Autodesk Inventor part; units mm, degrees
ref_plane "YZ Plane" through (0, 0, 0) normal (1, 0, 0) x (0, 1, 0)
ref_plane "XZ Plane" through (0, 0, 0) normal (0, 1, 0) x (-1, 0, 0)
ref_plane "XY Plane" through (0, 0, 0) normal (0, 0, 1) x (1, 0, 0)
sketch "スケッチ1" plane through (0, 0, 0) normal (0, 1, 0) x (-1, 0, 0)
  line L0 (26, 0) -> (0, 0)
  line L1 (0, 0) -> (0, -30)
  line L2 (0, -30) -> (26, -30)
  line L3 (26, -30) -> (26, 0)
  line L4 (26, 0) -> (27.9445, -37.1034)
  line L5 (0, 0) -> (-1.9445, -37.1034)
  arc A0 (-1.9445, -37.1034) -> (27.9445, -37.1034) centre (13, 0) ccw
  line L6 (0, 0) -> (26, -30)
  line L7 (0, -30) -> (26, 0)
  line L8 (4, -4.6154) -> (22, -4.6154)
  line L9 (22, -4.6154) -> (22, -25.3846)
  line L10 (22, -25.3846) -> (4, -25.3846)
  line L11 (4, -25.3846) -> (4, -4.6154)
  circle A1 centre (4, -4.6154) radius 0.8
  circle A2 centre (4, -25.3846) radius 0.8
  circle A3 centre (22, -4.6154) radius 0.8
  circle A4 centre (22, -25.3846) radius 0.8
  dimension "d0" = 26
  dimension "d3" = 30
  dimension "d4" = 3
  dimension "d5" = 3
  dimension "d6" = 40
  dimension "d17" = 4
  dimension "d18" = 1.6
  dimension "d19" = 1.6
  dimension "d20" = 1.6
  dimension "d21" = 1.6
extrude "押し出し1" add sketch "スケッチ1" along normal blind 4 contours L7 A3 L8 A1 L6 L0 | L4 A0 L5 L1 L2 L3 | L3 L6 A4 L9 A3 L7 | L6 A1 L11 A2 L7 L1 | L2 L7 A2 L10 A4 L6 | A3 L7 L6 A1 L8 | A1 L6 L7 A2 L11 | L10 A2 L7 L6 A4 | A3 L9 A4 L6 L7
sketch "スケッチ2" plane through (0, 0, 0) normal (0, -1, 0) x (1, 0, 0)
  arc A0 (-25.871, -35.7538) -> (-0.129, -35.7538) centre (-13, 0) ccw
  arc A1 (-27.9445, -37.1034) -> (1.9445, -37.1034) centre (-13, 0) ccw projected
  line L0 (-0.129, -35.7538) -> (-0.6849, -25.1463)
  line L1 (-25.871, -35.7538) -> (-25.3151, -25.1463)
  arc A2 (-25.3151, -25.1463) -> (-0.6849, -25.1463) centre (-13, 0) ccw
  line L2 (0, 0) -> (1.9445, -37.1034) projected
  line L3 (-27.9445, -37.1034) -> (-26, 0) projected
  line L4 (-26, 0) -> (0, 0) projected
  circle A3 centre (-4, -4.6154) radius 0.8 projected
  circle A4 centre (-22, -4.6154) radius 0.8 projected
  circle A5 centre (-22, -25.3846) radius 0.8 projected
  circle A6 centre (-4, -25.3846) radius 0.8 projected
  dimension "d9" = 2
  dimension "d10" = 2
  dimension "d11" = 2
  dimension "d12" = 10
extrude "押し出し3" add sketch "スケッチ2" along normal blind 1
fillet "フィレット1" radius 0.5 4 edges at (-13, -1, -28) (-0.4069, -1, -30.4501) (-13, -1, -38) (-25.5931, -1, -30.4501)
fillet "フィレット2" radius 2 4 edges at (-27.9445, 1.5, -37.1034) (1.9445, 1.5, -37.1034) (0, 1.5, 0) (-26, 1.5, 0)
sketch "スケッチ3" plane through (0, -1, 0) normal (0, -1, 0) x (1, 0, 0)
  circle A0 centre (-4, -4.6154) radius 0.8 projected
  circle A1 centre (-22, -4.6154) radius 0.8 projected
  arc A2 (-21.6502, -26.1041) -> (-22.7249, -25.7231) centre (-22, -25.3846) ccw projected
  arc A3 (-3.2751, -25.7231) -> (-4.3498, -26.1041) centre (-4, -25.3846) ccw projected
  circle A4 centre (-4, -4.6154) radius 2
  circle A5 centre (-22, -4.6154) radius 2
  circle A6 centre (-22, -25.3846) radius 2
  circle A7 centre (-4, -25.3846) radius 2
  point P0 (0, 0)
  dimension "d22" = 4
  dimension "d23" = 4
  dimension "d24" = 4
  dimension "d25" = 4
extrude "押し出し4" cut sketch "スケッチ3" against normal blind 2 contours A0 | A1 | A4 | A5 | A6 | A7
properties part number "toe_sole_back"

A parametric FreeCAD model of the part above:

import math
import FreeCAD as App
import Part
import Sketcher

V = App.Vector
Q = App.Units.Quantity


def edges_at(feature, points):
    """Names of the edges that pass closest to the given points."""
    edges = feature.Shape.Edges
    near = lambda p: min(range(len(edges)), key=lambda i: edges[i].distToShape(Part.Vertex(*p))[0])
    return sorted({f"Edge{near(p) + 1}" for p in points})

doc = App.newDocument("Part")
body = doc.addObject("PartDesign::Body", "Body")

# Sketch on XZ plane
sketch1 = doc.addObject("Sketcher::SketchObject", "Sketch")
body.addObject(sketch1)
sketch1.AttachmentSupport = (doc.XZ_Plane, [""])
sketch1.MapMode = "FlatFace"
sketch1.addGeometry(Part.LineSegment(V(-26, 0, 0), V(0, 0, 0)), False)
sketch1.addGeometry(Part.LineSegment(V(0, 0, 0), V(1.9, -37.1, 0)), False)
sketch1.addGeometry(Part.ArcOfCircle(Part.Circle(V(-13, 0, 0), V(0, 0, 1), 40), math.radians(-112), math.radians(-68)), False)
sketch1.addGeometry(Part.LineSegment(V(-27.9, -37.1, 0), V(-26, 0, 0)), False)
sketch1.addGeometry(Part.Circle(V(-22, -4.6, 0), V(0, 0, 1), 0.8), False)
sketch1.addGeometry(Part.Circle(V(-4, -4.6, 0), V(0, 0, 1), 0.8), False)
sketch1.addGeometry(Part.Circle(V(-22, -25.4, 0), V(0, 0, 1), 0.8), False)
sketch1.addGeometry(Part.Circle(V(-4, -25.4, 0), V(0, 0, 1), 0.8), False)
sketch1.addConstraint(Sketcher.Constraint("Coincident", 0, 2, 1, 1))
sketch1.addConstraint(Sketcher.Constraint("Coincident", 1, 2, 2, 2))
sketch1.addConstraint(Sketcher.Constraint("Coincident", 2, 1, 3, 1))
sketch1.addConstraint(Sketcher.Constraint("Coincident", 3, 2, 0, 1))
sketch1.addConstraint(Sketcher.Constraint("Horizontal", 0))
sketch1.addConstraint(Sketcher.Constraint("Coincident", 0, 2, -1, 1))
sketch1.addConstraint(Sketcher.Constraint("Equal", 4, 5))
sketch1.addConstraint(Sketcher.Constraint("Equal", 5, 6))
sketch1.addConstraint(Sketcher.Constraint("Equal", 6, 7))
sketch1.addConstraint(Sketcher.Constraint("PointOnObject", 2, 3, -1))
sketch1.addConstraint(Sketcher.Constraint("Horizontal", 4, 3, 5, 3))
sketch1.addConstraint(Sketcher.Constraint("Horizontal", 6, 3, 7, 3))
sketch1.addConstraint(Sketcher.Constraint("Horizontal", 1, 2, 2, 1))
sketch1.addConstraint(Sketcher.Constraint("Vertical", 4, 3, 6, 3))
sketch1.addConstraint(Sketcher.Constraint("Vertical", 5, 3, 7, 3))
sketch1.addConstraint(Sketcher.Constraint("Equal", 1, 3))
sketch1.addConstraint(Sketcher.Constraint("Radius", 2, Q("40 mm")))
sketch1.addConstraint(Sketcher.Constraint("Diameter", 4, Q("1.6 mm")))
sketch1.addConstraint(Sketcher.Constraint("DistanceX", 0, 1, 0, 2, Q("26 mm")))
sketch1.addConstraint(Sketcher.Constraint("DistanceX", 5, 3, -1, 1, Q("4 mm")))
sketch1.addConstraint(Sketcher.Constraint("DistanceX", 3, 2, 4, 3, Q("4 mm")))
sketch1.addConstraint(Sketcher.Constraint("Angle", 1, Q("-87 deg")))
sketch1.addConstraint(Sketcher.Constraint("DistanceY", 1, 2, 5, 3, Q("32.488 mm")))
sketch1.addConstraint(Sketcher.Constraint("DistanceY", 6, 3, -1, 1, Q("25.3846 mm")))
pad1 = doc.addObject("PartDesign::Pad", "Pad")
body.addObject(pad1)
pad1.Profile = sketch1
pad1.Length = 4
pad1.Reversed = True

# Sketch on XZ plane
sketch2 = doc.addObject("Sketcher::SketchObject", "Sketch001")
body.addObject(sketch2)
sketch2.AttachmentSupport = (doc.XZ_Plane, [""])
sketch2.MapMode = "FlatFace"
sketch2.addGeometry(Part.LineSegment(V(-26, 0, 0), V(-27.9, -37.1, 0)), False)
sketch2.addGeometry(Part.ArcOfCircle(Part.Circle(V(-13, 0, 0), V(0, 0, 1), 40), math.radians(-112), math.radians(-68)), False)
sketch2.addGeometry(Part.LineSegment(V(1.9, -37.1, 0), V(0, 0, 0)), False)
sketch2.addGeometry(Part.LineSegment(V(0, 0, 0), V(-26, 0, 0)), False)
sketch2.addGeometry(Part.Circle(V(-22, -25.4, 0), V(0, 0, 1), 0.8), False)
sketch2.addGeometry(Part.ArcOfCircle(Part.Circle(V(-13, 0, 0), V(0, 0, 1), 38), math.radians(-110), math.radians(-70)), False)
sketch2.addGeometry(Part.LineSegment(V(-25.9, -35.8, 0), V(-25.3, -25.1, 0)), False)
sketch2.addGeometry(Part.ArcOfCircle(Part.Circle(V(-13, 0, 0), V(0, 0, 1), 28), math.radians(-116), math.radians(-64)), False)
sketch2.addGeometry(Part.LineSegment(V(-0.7, -25.1, 0), V(-0.1, -35.8, 0)), False)
sketch2.addGeometry(Part.Circle(V(-4, -25.4, 0), V(0, 0, 1), 0.8), False)
sketch2.addGeometry(Part.Circle(V(-22, -4.6, 0), V(0, 0, 1), 0.8), False)
sketch2.addGeometry(Part.Circle(V(-4, -4.6, 0), V(0, 0, 1), 0.8), False)
sketch2.addConstraint(Sketcher.Constraint("Coincident", 0, 2, 1, 1))
sketch2.addConstraint(Sketcher.Constraint("Coincident", 1, 2, 2, 1))
sketch2.addConstraint(Sketcher.Constraint("Coincident", 2, 2, 3, 1))
sketch2.addConstraint(Sketcher.Constraint("Coincident", 3, 2, 0, 1))
sketch2.addConstraint(Sketcher.Constraint("Coincident", 5, 1, 6, 1))
sketch2.addConstraint(Sketcher.Constraint("Coincident", 6, 2, 7, 1))
sketch2.addConstraint(Sketcher.Constraint("Coincident", 7, 2, 8, 1))
sketch2.addConstraint(Sketcher.Constraint("Coincident", 8, 2, 5, 2))
sketch2.addConstraint(Sketcher.Constraint("Horizontal", 3))
sketch2.addConstraint(Sketcher.Constraint("Coincident", 2, 2, -1, 1))
sketch2.addConstraint(Sketcher.Constraint("Coincident", 5, 3, 1, 3))
sketch2.addConstraint(Sketcher.Constraint("Coincident", 7, 3, 1, 3))
sketch2.addConstraint(Sketcher.Constraint("Equal", 4, 9))
sketch2.addConstraint(Sketcher.Constraint("Equal", 9, 10))
sketch2.addConstraint(Sketcher.Constraint("Equal", 10, 11))
sketch2.addConstraint(Sketcher.Constraint("PointOnObject", 1, 3, -1))
sketch2.addConstraint(Sketcher.Constraint("Parallel", 0, 6))
sketch2.addConstraint(Sketcher.Constraint("Parallel", 2, 8))
sketch2.addConstraint(Sketcher.Constraint("Horizontal", 4, 3, 9, 3))
sketch2.addConstraint(Sketcher.Constraint("Horizontal", 10, 3, 11, 3))
sketch2.addConstraint(Sketcher.Constraint("Horizontal", 0, 2, 1, 2))
sketch2.addConstraint(Sketcher.Constraint("Horizontal", 6, 2, 7, 2))
sketch2.addConstraint(Sketcher.Constraint("Horizontal", 5, 1, 8, 2))
sketch2.addConstraint(Sketcher.Constraint("Vertical", 4, 3, 10, 3))
sketch2.addConstraint(Sketcher.Constraint("Vertical", 9, 3, 11, 3))
sketch2.addConstraint(Sketcher.Constraint("Radius", 1, Q("40 mm")))
sketch2.addConstraint(Sketcher.Constraint("Radius", 5, Q("38 mm")))
sketch2.addConstraint(Sketcher.Constraint("Radius", 7, Q("28 mm")))
sketch2.addConstraint(Sketcher.Constraint("Diameter", 4, Q("1.6 mm")))
sketch2.addConstraint(Sketcher.Constraint("DistanceX", 3, 2, 3, 1, Q("26 mm")))
sketch2.addConstraint(Sketcher.Constraint("Angle", 0, Q("-93 deg")))
sketch2.addConstraint(Sketcher.Constraint("DistanceX", 4, 3, -1, 1, Q("22 mm")))
sketch2.addConstraint(Sketcher.Constraint("DistanceX", 9, 3, -1, 1, Q("4 mm")))
sketch2.addConstraint(Sketcher.Constraint("Distance", 6, Q("10.622 mm")))
sketch2.addConstraint(Sketcher.Constraint("DistanceY", 0, 2, 10, 3, Q("32.488 mm")))
sketch2.addConstraint(Sketcher.Constraint("DistanceY", 4, 3, -1, 1, Q("25.3846 mm")))
pad2 = doc.addObject("PartDesign::Pad", "Pad001")
body.addObject(pad2)
pad2.Profile = sketch2
pad2.Length = 1
doc.recompute()

fillet = doc.addObject("PartDesign::Fillet", "Fillet")
body.addObject(fillet)
fillet.Base = (pad2, edges_at(pad2, [
    (-13, -1, -28),
    (-0.407, -1, -30.45),
    (-13, -1, -38),
    (-25.593, -1, -30.45),
]))
fillet.Radius = 0.5
doc.recompute()

fillet2 = doc.addObject("PartDesign::Fillet", "Fillet001")
body.addObject(fillet2)
fillet2.Base = (fillet, edges_at(fillet, [
    (-27.945, 1.5, -37.103),
    (1.944, 1.5, -37.103),
    (0, 1.5, 0),
    (-26, 1.5, 0),
]))
fillet2.Radius = 2

# Sketch on XZ plane
sketch3 = doc.addObject("Sketcher::SketchObject", "Sketch002")
body.addObject(sketch3)
sketch3.AttachmentSupport = (doc.XZ_Plane, [""])
sketch3.MapMode = "FlatFace"
sketch3.AttachmentOffset = App.Placement(V(0, 0, 1), App.Rotation())
sketch3.addGeometry(Part.Circle(V(-4, -4.6, 0), V(0, 0, 1), 2), False)
sketch3.addGeometry(Part.Circle(V(-22, -4.6, 0), V(0, 0, 1), 2), False)
sketch3.addGeometry(Part.Circle(V(-22, -25.4, 0), V(0, 0, 1), 2), False)
sketch3.addGeometry(Part.Circle(V(-4, -25.4, 0), V(0, 0, 1), 2), False)
sketch3.addConstraint(Sketcher.Constraint("Equal", 0, 1))
sketch3.addConstraint(Sketcher.Constraint("Equal", 1, 2))
sketch3.addConstraint(Sketcher.Constraint("Equal", 2, 3))
sketch3.addConstraint(Sketcher.Constraint("Horizontal", 0, 3, 1, 3))
sketch3.addConstraint(Sketcher.Constraint("Horizontal", 2, 3, 3, 3))
sketch3.addConstraint(Sketcher.Constraint("Vertical", 1, 3, 2, 3))
sketch3.addConstraint(Sketcher.Constraint("Vertical", 0, 3, 3, 3))
sketch3.addConstraint(Sketcher.Constraint("Diameter", 0, Q("4 mm")))
sketch3.addConstraint(Sketcher.Constraint("DistanceX", 0, 3, -1, 1, Q("4 mm")))
sketch3.addConstraint(Sketcher.Constraint("DistanceX", 1, 3, -1, 1, Q("22 mm")))
sketch3.addConstraint(Sketcher.Constraint("DistanceY", 0, 3, -1, 1, Q("4.6154 mm")))
sketch3.addConstraint(Sketcher.Constraint("DistanceY", 2, 3, -1, 1, Q("25.3846 mm")))
pocket1 = doc.addObject("PartDesign::Pocket", "Pocket")
body.addObject(pocket1)
pocket1.Profile = sketch3
pocket1.Length = 2

doc.recompute()
